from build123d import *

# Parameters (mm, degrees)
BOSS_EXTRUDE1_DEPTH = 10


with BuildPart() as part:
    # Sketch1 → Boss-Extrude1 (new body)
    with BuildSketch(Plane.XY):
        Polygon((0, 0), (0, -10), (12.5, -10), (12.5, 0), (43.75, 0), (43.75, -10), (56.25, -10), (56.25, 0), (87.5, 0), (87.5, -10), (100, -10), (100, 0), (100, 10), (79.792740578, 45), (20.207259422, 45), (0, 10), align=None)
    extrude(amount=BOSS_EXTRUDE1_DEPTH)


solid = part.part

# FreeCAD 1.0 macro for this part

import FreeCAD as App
import Part
import Sketcher

V = App.Vector
Q = App.Units.Quantity

doc = App.newDocument("Part")
body = doc.addObject("PartDesign::Body", "Body")

sketch1 = body.newObject("Sketcher::SketchObject", "Sketch")
sketch1.AttachmentSupport = (doc.getObject("XY_Plane"), [""])
sketch1.MapMode = "FlatFace"
sketch1.addGeometry([
    Part.LineSegment(V(0, -10, 0), V(12, -10, 0)),
    Part.LineSegment(V(12, -10, 0), V(12, 0, 0)),
    Part.LineSegment(V(12, 0, 0), V(44, 0, 0)),
    Part.LineSegment(V(44, 0, 0), V(44, -10, 0)),
    Part.LineSegment(V(44, -10, 0), V(56, -10, 0)),
    Part.LineSegment(V(56, -10, 0), V(56, 0, 0)),
    Part.LineSegment(V(56, 0, 0), V(88, 0, 0)),
    Part.LineSegment(V(88, 0, 0), V(88, -10, 0)),
    Part.LineSegment(V(88, -10, 0), V(100, -10, 0)),
    Part.LineSegment(V(100, -10, 0), V(100, 10, 0)),
    Part.LineSegment(V(100, 10, 0), V(80, 45, 0)),
    Part.LineSegment(V(80, 45, 0), V(20, 45, 0)),
    Part.LineSegment(V(20, 45, 0), V(0, 10, 0)),
    Part.LineSegment(V(0, 10, 0), V(0, -10, 0)),
], False)
sketch1.addConstraint([
    Sketcher.Constraint("Coincident", 0, 2, 1, 1),
    Sketcher.Constraint("Coincident", 1, 2, 2, 1),
    Sketcher.Constraint("Coincident", 2, 2, 3, 1),
    Sketcher.Constraint("Coincident", 3, 2, 4, 1),
    Sketcher.Constraint("Coincident", 4, 2, 5, 1),
    Sketcher.Constraint("Coincident", 5, 2, 6, 1),
    Sketcher.Constraint("Coincident", 6, 2, 7, 1),
    Sketcher.Constraint("Coincident", 7, 2, 8, 1),
    Sketcher.Constraint("Coincident", 8, 2, 9, 1),
    Sketcher.Constraint("Coincident", 9, 2, 10, 1),
    Sketcher.Constraint("Coincident", 10, 2, 11, 1),
    Sketcher.Constraint("Coincident", 11, 2, 12, 1),
    Sketcher.Constraint("Coincident", 12, 2, 13, 1),
    Sketcher.Constraint("Coincident", 13, 2, 0, 1),
    Sketcher.Constraint("Horizontal", 0),
    Sketcher.Constraint("Vertical", 1),
    Sketcher.Constraint("Horizontal", 2),
    Sketcher.Constraint("Vertical", 3),
    Sketcher.Constraint("Horizontal", 4),
    Sketcher.Constraint("Vertical", 5),
    Sketcher.Constraint("Horizontal", 6),
    Sketcher.Constraint("Vertical", 7),
    Sketcher.Constraint("Horizontal", 8),
    Sketcher.Constraint("Vertical", 9),
    Sketcher.Constraint("Horizontal", 11),
    Sketcher.Constraint("Vertical", 13),
    Sketcher.Constraint("Symmetric", 12, 2, 13, 2, -1, 1),
    Sketcher.Constraint("PointOnObject", 1, 2, -1),
    Sketcher.Constraint("PointOnObject", 5, 2, -1),
    Sketcher.Constraint("Horizontal", 0, 2, 3, 2),
    Sketcher.Constraint("Horizontal", 4, 2, 7, 2),
    Sketcher.Constraint("Horizontal", 9, 2, 12, 2),
    Sketcher.Constraint("Equal", 0, 4),
    Sketcher.Constraint("Equal", 2, 6),
    Sketcher.Constraint("Equal", 4, 8),
    Sketcher.Constraint("Equal", 10, 12),
    Sketcher.Constraint("DistanceY", 1, 1, 1, 2, Q("10 mm")),
    Sketcher.Constraint("Angle", 10, Q("120 deg")),
    Sketcher.Constraint("DistanceX", 0, 1, 0, 2, Q("12.5 mm")),
    Sketcher.Constraint("DistanceX", -1, 1, 8, 2, Q("100 mm")),
    Sketcher.Constraint("DistanceY", -1, 1, 10, 2, Q("45 mm")),
])
pad1 = body.newObject("PartDesign::Pad", "Pad")
pad1.Profile = sketch1
pad1.Length = 10

doc.recompute()
